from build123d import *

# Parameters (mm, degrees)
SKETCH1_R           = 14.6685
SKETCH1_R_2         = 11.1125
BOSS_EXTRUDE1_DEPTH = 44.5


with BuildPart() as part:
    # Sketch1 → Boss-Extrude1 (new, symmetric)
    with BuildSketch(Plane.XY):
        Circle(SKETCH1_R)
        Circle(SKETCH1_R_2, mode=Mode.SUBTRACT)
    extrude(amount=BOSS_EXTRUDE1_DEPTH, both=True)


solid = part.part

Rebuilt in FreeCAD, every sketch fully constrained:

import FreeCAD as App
import Part
import Sketcher

V = App.Vector
Q = App.Units.Quantity

doc = App.newDocument("Part")
body = doc.addObject("PartDesign::Body", "Body")

sketch1 = body.newObject("Sketcher::SketchObject", "Sketch")
sketch1.AttachmentSupport = (doc.getObject("XY_Plane"), [""])
sketch1.MapMode = "FlatFace"
sketch1.addGeometry(Part.Circle(V(0, 0, 0), V(0, 0, 1), 15), False)
sketch1.addGeometry(Part.Circle(V(0, 0, 0), V(0, 0, 1), 11), False)
sketch1.addConstraint(Sketcher.Constraint("Coincident", 0, 3, -1, 1))
sketch1.addConstraint(Sketcher.Constraint("Coincident", 1, 3, -1, 1))
sketch1.addConstraint(Sketcher.Constraint("Diameter", 0, Q("1.155 in")))
sketch1.addConstraint(Sketcher.Constraint("Diameter", 1, Q("0.875 in")))
pad1 = body.newObject("PartDesign::Pad", "Pad")
pad1.Profile = sketch1
pad1.Length = 89
pad1.Midplane = True

doc.recompute()
